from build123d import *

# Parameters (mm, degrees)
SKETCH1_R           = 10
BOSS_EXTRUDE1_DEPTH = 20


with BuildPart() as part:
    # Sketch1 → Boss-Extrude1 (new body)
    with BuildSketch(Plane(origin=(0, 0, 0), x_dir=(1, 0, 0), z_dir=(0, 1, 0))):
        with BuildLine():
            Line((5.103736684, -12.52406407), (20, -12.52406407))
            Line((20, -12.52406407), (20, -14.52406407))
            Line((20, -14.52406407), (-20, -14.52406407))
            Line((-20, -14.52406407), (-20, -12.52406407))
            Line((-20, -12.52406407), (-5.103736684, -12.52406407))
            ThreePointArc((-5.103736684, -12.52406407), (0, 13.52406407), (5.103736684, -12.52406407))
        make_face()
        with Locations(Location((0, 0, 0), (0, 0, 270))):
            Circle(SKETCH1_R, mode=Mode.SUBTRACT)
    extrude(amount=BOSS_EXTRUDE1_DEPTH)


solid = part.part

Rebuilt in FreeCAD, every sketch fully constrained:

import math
import FreeCAD as App
import Part
import Sketcher

V = App.Vector
Q = App.Units.Quantity

doc = App.newDocument("Part")
body = doc.addObject("PartDesign::Body", "Body")

sketch1 = body.newObject("Sketcher::SketchObject", "Sketch")
sketch1.AttachmentSupport = (doc.getObject("XZ_Plane"), [""])
sketch1.MapMode = "FlatFace"
sketch1.addGeometry([
    Part.LineSegment(V(20, 12.5, 0), V(5.1, 12.5, 0)),
    Part.ArcOfCircle(Part.Circle(V(0, 0, 0), V(0, 0, 1), 13.5), math.radians(112), math.radians(428)),
    Part.LineSegment(V(-5.1, 12.5, 0), V(-20, 12.5, 0)),
    Part.LineSegment(V(-20, 12.5, 0), V(-20, 14.5, 0)),
    Part.LineSegment(V(-20, 14.5, 0), V(20, 14.5, 0)),
    Part.LineSegment(V(20, 14.5, 0), V(20, 12.5, 0)),
    Part.Circle(V(0, 0, 0), V(0, 0, 1), 10),
], False)
sketch1.addConstraint([
    Sketcher.Constraint("Coincident", 0, 2, 1, 2),
    Sketcher.Constraint("Coincident", 1, 1, 2, 1),
    Sketcher.Constraint("Coincident", 2, 2, 3, 1),
    Sketcher.Constraint("Coincident", 3, 2, 4, 1),
    Sketcher.Constraint("Coincident", 4, 2, 5, 1),
    Sketcher.Constraint("Coincident", 5, 2, 0, 1),
    Sketcher.Constraint("Horizontal", 0),
    Sketcher.Constraint("Horizontal", 2),
    Sketcher.Constraint("Vertical", 3),
    Sketcher.Constraint("Horizontal", 4),
    Sketcher.Constraint("Vertical", 5),
    Sketcher.Constraint("Coincident", 1, 3, -1, 1),
    Sketcher.Constraint("Coincident", 6, 3, -1, 1),
    Sketcher.Constraint("Symmetric", 2, 2, 5, 2, -2),
    Sketcher.Constraint("Diameter", 6, Q("20 mm")),
    Sketcher.Constraint("DistanceX", 4, 1, 4, 2, Q("40 mm")),
    Sketcher.Constraint("DistanceY", 3, 1, 3, 2, Q("2 mm")),
    Sketcher.Constraint("Radius", 1, Q("13.524064 mm")),
    Sketcher.Constraint("DistanceX", 0, 2, 0, 1, Q("14.896263 mm")),
])
pad1 = body.newObject("PartDesign::Pad", "Pad")
pad1.Profile = sketch1
pad1.Length = 20
pad1.Reversed = True

doc.recompute()
